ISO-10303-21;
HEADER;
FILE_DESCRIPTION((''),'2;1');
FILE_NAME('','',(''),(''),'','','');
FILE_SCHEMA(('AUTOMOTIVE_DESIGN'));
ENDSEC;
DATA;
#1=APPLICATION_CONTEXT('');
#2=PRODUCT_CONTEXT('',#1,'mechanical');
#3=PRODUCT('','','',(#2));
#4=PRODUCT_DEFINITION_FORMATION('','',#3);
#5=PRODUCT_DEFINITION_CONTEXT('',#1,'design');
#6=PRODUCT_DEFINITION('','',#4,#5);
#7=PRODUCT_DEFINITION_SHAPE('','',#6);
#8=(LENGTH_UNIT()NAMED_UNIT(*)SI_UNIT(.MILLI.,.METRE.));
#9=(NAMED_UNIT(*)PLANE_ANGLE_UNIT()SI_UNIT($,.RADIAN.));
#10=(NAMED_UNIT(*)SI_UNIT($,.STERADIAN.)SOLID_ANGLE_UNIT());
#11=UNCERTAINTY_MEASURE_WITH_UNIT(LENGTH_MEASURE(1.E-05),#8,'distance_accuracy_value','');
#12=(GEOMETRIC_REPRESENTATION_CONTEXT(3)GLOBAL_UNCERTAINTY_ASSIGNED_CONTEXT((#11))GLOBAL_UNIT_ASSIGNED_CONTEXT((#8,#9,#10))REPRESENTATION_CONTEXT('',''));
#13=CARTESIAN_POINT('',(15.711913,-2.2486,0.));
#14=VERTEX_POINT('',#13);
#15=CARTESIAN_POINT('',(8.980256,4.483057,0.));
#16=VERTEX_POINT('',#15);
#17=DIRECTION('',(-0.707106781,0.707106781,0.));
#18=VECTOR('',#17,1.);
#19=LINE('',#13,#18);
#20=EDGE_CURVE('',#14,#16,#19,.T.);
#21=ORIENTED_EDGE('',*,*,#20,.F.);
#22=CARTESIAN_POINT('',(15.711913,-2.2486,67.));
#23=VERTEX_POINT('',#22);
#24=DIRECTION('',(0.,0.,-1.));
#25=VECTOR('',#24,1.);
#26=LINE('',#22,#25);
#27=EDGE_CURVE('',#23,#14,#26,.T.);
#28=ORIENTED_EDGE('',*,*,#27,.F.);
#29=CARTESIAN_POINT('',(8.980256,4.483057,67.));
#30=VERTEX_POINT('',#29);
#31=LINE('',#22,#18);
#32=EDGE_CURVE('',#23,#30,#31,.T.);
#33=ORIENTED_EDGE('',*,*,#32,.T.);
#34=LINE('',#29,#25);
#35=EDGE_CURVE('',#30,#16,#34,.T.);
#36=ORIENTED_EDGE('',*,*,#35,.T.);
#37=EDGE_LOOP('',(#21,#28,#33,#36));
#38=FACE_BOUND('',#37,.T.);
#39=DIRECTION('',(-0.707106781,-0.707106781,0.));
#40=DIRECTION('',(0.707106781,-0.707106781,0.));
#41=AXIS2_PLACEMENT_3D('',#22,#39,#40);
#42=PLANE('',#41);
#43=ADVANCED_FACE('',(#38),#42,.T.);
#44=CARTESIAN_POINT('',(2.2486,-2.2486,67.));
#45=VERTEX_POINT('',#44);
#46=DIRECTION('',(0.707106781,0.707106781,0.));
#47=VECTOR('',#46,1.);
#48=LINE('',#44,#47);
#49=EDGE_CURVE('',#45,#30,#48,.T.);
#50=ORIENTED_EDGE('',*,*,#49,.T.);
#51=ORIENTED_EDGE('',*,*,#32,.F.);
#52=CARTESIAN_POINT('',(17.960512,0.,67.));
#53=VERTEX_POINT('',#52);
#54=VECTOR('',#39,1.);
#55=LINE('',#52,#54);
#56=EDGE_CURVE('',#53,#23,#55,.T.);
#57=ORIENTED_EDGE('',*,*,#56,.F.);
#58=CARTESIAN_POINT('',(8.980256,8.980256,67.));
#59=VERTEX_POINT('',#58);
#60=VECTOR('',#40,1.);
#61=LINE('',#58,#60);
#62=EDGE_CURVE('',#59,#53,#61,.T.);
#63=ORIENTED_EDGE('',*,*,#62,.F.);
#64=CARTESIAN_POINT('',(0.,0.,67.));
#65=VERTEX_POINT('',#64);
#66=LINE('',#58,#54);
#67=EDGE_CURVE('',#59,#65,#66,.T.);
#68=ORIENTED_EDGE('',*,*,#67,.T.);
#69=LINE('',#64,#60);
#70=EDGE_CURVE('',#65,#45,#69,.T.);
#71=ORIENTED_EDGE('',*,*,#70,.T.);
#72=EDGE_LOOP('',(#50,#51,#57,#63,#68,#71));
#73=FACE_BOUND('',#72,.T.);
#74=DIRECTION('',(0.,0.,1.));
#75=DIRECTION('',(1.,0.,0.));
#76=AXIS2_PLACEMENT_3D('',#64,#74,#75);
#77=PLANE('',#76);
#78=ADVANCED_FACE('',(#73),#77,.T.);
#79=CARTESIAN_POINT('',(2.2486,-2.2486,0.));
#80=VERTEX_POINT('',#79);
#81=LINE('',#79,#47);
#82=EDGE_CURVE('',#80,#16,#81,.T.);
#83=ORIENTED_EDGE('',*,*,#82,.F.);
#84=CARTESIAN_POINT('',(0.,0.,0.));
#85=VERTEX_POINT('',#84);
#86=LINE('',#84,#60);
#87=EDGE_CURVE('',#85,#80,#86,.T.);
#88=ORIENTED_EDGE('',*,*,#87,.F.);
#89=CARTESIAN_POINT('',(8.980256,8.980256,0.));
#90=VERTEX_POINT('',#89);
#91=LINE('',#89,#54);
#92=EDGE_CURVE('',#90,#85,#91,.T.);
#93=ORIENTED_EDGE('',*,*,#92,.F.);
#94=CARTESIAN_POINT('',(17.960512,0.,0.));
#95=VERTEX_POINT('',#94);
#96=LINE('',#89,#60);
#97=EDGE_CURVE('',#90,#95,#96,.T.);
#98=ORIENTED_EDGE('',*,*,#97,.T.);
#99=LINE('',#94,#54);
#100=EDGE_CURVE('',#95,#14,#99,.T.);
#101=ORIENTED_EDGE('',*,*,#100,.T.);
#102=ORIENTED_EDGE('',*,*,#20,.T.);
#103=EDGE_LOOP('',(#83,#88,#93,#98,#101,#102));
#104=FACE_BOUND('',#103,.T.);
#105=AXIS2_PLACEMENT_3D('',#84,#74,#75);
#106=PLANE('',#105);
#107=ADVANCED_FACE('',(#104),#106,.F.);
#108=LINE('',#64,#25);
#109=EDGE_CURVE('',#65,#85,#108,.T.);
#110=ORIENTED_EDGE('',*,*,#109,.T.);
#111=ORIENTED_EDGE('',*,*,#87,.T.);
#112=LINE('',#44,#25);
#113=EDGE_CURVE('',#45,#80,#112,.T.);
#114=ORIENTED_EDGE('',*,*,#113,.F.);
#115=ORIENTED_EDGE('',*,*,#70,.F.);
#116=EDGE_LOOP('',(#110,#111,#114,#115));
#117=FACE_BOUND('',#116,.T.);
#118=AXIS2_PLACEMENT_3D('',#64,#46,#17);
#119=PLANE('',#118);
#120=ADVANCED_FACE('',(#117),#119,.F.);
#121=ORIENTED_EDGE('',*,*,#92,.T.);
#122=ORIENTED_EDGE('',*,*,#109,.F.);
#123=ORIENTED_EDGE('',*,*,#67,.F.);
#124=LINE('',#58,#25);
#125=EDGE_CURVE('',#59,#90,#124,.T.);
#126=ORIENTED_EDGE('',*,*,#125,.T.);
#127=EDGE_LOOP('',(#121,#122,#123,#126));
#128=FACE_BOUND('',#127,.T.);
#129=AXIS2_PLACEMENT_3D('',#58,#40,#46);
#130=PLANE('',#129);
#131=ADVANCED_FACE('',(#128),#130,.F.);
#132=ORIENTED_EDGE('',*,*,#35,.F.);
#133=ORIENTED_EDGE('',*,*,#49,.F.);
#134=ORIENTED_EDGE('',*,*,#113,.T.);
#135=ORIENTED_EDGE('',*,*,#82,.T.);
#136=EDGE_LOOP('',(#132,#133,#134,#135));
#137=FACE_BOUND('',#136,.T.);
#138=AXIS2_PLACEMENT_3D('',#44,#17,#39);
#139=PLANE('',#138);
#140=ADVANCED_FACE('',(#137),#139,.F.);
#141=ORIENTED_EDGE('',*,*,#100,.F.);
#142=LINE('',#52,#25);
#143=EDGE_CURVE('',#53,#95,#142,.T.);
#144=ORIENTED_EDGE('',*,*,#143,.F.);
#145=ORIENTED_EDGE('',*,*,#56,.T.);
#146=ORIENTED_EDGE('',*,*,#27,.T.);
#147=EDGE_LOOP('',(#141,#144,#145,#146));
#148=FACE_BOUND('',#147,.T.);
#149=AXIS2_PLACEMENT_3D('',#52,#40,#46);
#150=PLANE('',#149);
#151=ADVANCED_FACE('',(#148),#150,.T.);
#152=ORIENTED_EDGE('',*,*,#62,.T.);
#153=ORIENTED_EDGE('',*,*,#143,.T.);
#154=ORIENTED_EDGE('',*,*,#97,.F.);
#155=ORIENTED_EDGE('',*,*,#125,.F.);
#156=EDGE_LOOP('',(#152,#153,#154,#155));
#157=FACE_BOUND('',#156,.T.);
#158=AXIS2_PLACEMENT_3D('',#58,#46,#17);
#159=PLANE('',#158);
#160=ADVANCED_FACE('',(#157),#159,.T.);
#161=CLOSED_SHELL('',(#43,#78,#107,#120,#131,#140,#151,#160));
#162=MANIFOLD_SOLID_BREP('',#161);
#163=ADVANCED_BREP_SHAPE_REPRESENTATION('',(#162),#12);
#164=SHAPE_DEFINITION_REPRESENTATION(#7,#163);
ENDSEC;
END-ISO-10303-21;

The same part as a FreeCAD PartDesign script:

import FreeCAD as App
import Part
import Sketcher
from FreeCAD import Vector


def add_polygon(sketch, points):
    """Adds a closed chain of lines whose ends are joined by coincident constraints."""
    first, n = sketch.GeometryCount, len(points)
    for a, b in zip(points, points[1:] + points[:1]):
        sketch.addGeometry(Part.LineSegment(App.Vector(*a, 0), App.Vector(*b, 0)), False)
    for i in range(n):
        sketch.addConstraint(Sketcher.Constraint("Coincident", first + i, 2, first + (i + 1) % n, 1))

doc = App.newDocument("Part")
body = doc.addObject("PartDesign::Body", "Body")

# Sketch on XY plane
sketch1 = body.newObject("Sketcher::SketchObject", "Sketch")
sketch1.AttachmentSupport = (doc.getObject("XY_Plane"), [""])
sketch1.MapMode = "FlatFace"
add_polygon(sketch1, [(18, 0), (9, 9), (0, 0), (2.2, -2.2), (9, 4.5), (15.7, -2.2)])  # lines 0-5
sketch1.addConstraint([
    Sketcher.Constraint("Coincident", 1, 2, -1, 1),
    Sketcher.Constraint("PointOnObject", 5, 2, -1),
    Sketcher.Constraint("Perpendicular", 0, 1),
    Sketcher.Constraint("Perpendicular", 1, 2),
    Sketcher.Constraint("Perpendicular", 2, 3),
    Sketcher.Constraint("Perpendicular", 3, 4),
    Sketcher.Constraint("Perpendicular", 4, 5),
    Sketcher.Constraint("Horizontal", 2, 2, 4, 2),
    Sketcher.Constraint("Vertical", 0, 2, 3, 2),
    Sketcher.Constraint("Distance", 0, 12.7),
    Sketcher.Constraint("Distance", 2, 3.18),
])
pad1 = body.newObject("PartDesign::Pad", "Pad")
pad1.Profile = sketch1
pad1.Length = 67

doc.recompute()
